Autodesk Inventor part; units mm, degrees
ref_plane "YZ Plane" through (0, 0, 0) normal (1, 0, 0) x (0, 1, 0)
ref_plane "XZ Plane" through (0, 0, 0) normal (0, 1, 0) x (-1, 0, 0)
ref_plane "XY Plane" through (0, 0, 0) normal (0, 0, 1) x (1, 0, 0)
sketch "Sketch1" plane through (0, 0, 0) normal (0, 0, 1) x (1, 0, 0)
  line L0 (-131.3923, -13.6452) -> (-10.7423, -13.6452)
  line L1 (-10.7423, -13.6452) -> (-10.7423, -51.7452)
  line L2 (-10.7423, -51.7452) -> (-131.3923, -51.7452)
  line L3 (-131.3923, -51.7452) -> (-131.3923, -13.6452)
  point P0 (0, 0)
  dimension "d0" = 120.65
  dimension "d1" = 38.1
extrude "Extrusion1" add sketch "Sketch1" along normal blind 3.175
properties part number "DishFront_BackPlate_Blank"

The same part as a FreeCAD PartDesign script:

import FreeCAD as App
import Part
import Sketcher
Q = App.Units.Quantity

doc = App.newDocument("Part")
params = doc.addObject("Spreadsheet::Sheet", "Params")
for row, (alias, value) in enumerate([
    ("sketch1_height", "1.5 in"),
    ("sketch1_width", "4.75 in"),
    ("pad1_length", "0.125 in"),
], start=1):
    params.set(f"A{row}", alias)
    params.set(f"B{row}", "=" + value)
    params.setAlias(f"B{row}", alias)

body = doc.addObject("PartDesign::Body", "Body")

# Sketch on XY plane
sketch1 = body.newObject("Sketcher::SketchObject", "Sketch")
sketch1.AttachmentSupport = (doc.getObject("XY_Plane"), [""])
sketch1.MapMode = "FlatFace"
sketch1.addGeometry(Part.LineSegment(App.Vector(-10.7423, -13.6452, 0), App.Vector(-131.3923, -13.6452, 0)), False)
sketch1.addGeometry(Part.LineSegment(App.Vector(-131.3923, -13.6452, 0), App.Vector(-131.3923, -51.7452, 0)), False)
sketch1.addGeometry(Part.LineSegment(App.Vector(-131.3923, -51.7452, 0), App.Vector(-10.7423, -51.7452, 0)), False)
sketch1.addGeometry(Part.LineSegment(App.Vector(-10.7423, -51.7452, 0), App.Vector(-10.7423, -13.6452, 0)), False)
sketch1.addConstraint(Sketcher.Constraint("Coincident", 0, 2, 1, 1))
sketch1.addConstraint(Sketcher.Constraint("Coincident", 1, 2, 2, 1))
sketch1.addConstraint(Sketcher.Constraint("Coincident", 2, 2, 3, 1))
sketch1.addConstraint(Sketcher.Constraint("Coincident", 3, 2, 0, 1))
sketch1.addConstraint(Sketcher.Constraint("Horizontal", 0))
sketch1.addConstraint(Sketcher.Constraint("Vertical", 1))
sketch1.addConstraint(Sketcher.Constraint("Horizontal", 2))
sketch1.addConstraint(Sketcher.Constraint("Vertical", 3))
sketch1.addConstraint(Sketcher.Constraint("DistanceY", 1, 2, 1, 1, Q("1.5 in")))
sketch1.addConstraint(Sketcher.Constraint("DistanceX", 0, 2, 0, 1, Q("4.75 in")))
sketch1.addConstraint(Sketcher.Constraint("DistanceX", 0, 2, -1, 1, 131.3923))
sketch1.addConstraint(Sketcher.Constraint("DistanceY", 0, 2, -1, 1, 13.6452))
sketch1.setExpression("Constraints[8]", "Params.sketch1_height")
sketch1.setExpression("Constraints[9]", "Params.sketch1_width")
pad1 = body.newObject("PartDesign::Pad", "Pad")
pad1.Profile = sketch1
pad1.setExpression("Length", "Params.pad1_length")

doc.recompute()
